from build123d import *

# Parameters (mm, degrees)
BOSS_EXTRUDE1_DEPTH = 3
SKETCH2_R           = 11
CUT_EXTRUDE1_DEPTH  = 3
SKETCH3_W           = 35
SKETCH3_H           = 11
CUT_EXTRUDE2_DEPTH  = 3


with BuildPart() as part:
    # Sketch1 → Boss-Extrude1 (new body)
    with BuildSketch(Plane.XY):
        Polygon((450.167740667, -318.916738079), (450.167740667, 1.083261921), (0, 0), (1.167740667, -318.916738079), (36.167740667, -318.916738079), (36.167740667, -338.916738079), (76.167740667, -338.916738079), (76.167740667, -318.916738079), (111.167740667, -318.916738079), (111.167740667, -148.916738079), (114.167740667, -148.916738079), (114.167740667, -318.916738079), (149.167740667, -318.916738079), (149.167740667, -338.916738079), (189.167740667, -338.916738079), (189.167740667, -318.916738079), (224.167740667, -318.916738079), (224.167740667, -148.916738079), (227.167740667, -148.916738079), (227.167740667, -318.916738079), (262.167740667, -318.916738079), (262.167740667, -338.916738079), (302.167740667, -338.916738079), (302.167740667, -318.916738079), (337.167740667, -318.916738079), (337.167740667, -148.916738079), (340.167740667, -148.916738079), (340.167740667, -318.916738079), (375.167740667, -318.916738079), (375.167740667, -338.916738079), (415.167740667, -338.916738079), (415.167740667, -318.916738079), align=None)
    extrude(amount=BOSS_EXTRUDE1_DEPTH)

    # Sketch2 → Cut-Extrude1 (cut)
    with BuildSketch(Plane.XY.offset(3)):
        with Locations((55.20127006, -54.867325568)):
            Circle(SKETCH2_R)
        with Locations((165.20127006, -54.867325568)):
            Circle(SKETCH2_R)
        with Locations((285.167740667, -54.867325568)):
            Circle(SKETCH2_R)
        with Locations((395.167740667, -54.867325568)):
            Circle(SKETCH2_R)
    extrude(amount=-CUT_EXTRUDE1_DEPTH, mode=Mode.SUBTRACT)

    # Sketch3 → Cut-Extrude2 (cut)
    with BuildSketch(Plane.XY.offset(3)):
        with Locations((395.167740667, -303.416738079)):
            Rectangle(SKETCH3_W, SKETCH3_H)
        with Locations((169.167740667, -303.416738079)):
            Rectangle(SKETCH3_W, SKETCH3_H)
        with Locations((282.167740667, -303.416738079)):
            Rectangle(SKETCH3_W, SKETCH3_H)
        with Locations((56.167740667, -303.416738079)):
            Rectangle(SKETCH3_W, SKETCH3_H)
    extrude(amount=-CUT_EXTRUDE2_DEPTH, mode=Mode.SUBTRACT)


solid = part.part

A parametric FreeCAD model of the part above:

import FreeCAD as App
import Part
import Sketcher
from FreeCAD import Vector
Q = App.Units.Quantity


def add_polygon(sketch, points):
    """Adds a closed chain of lines whose ends are joined by coincident constraints."""
    first, n = sketch.GeometryCount, len(points)
    for a, b in zip(points, points[1:] + points[:1]):
        sketch.addGeometry(Part.LineSegment(App.Vector(*a, 0), App.Vector(*b, 0)), False)
    for i in range(n):
        sketch.addConstraint(Sketcher.Constraint("Coincident", first + i, 2, first + (i + 1) % n, 1))

doc = App.newDocument("Part")
body = doc.addObject("PartDesign::Body", "Body")

# Sketch on XY plane
sketch1 = body.newObject("Sketcher::SketchObject", "Sketch")
sketch1.AttachmentSupport = (doc.getObject("XY_Plane"), [""])
sketch1.MapMode = "FlatFace"
add_polygon(sketch1, [(450.2, -318.9), (450.2, 1.1), (0, 0), (1.2, -318.9), (36.2, -318.9), (36.2, -338.9), (76.2, -338.9), (76.2, -318.9), (111.2, -318.9), (111.2, -148.9), (114.2, -148.9), (114.2, -318.9), (149.2, -318.9), (149.2, -338.9), (189.2, -338.9), (189.2, -318.9), (224.2, -318.9), (224.2, -148.9), (227.2, -148.9), (227.2, -318.9), (262.2, -318.9), (262.2, -338.9), (302.2, -338.9), (302.2, -318.9), (337.2, -318.9), (337.2, -148.9), (340.2, -148.9), (340.2, -318.9), (375.2, -318.9), (375.2, -338.9), (415.2, -338.9), (415.2, -318.9)])  # lines 0-31
sketch1.addConstraint([
    Sketcher.Constraint("Vertical", 0),
    Sketcher.Constraint("Horizontal", 3),
    Sketcher.Constraint("Vertical", 4),
    Sketcher.Constraint("Horizontal", 5),
    Sketcher.Constraint("Vertical", 6),
    Sketcher.Constraint("Horizontal", 7),
    Sketcher.Constraint("Vertical", 8),
    Sketcher.Constraint("Horizontal", 9),
    Sketcher.Constraint("Vertical", 10),
    Sketcher.Constraint("Horizontal", 11),
    Sketcher.Constraint("Vertical", 12),
    Sketcher.Constraint("Horizontal", 13),
    Sketcher.Constraint("Vertical", 14),
    Sketcher.Constraint("Horizontal", 15),
    Sketcher.Constraint("Vertical", 16),
    Sketcher.Constraint("Horizontal", 17),
    Sketcher.Constraint("Vertical", 18),
    Sketcher.Constraint("Horizontal", 19),
    Sketcher.Constraint("Vertical", 20),
    Sketcher.Constraint("Horizontal", 21),
    Sketcher.Constraint("Vertical", 22),
    Sketcher.Constraint("Horizontal", 23),
    Sketcher.Constraint("Vertical", 24),
    Sketcher.Constraint("Horizontal", 25),
    Sketcher.Constraint("Vertical", 26),
    Sketcher.Constraint("Horizontal", 27),
    Sketcher.Constraint("Vertical", 28),
    Sketcher.Constraint("Horizontal", 29),
    Sketcher.Constraint("Vertical", 30),
    Sketcher.Constraint("Horizontal", 31),
    Sketcher.Constraint("Coincident", 1, 2, -1, 1),
    Sketcher.Constraint("Horizontal", 3, 2, 6, 2),
    Sketcher.Constraint("Horizontal", 7, 2, 10, 2),
    Sketcher.Constraint("Horizontal", 5, 2, 12, 2),
    Sketcher.Constraint("Horizontal", 11, 2, 14, 2),
    Sketcher.Constraint("Horizontal", 9, 2, 16, 2),
    Sketcher.Constraint("Horizontal", 15, 2, 18, 2),
    Sketcher.Constraint("Horizontal", 13, 2, 20, 2),
    Sketcher.Constraint("Horizontal", 19, 2, 22, 2),
    Sketcher.Constraint("Horizontal", 17, 2, 24, 2),
    Sketcher.Constraint("Horizontal", 23, 2, 26, 2),
    Sketcher.Constraint("Horizontal", 21, 2, 28, 2),
    Sketcher.Constraint("Horizontal", 27, 2, 30, 2),
    Sketcher.Constraint("Equal", 3, 7),
    Sketcher.Constraint("Equal", 7, 11),
    Sketcher.Constraint("Equal", 5, 13),
    Sketcher.Constraint("Equal", 11, 15),
    Sketcher.Constraint("Equal", 9, 17),
    Sketcher.Constraint("Equal", 15, 19),
    Sketcher.Constraint("Equal", 13, 21),
    Sketcher.Constraint("Equal", 19, 23),
    Sketcher.Constraint("Equal", 17, 25),
    Sketcher.Constraint("Equal", 23, 27),
    Sketcher.Constraint("Equal", 21, 29),
    Sketcher.Constraint("Equal", 27, 31),
    Sketcher.Constraint("DistanceX", 3, 1, 3, 2, Q("35 mm")),
    Sketcher.Constraint("DistanceX", 5, 1, 5, 2, Q("40 mm")),
    Sketcher.Constraint("DistanceX", 9, 1, 9, 2, Q("3 mm")),
    Sketcher.Constraint("DistanceY", 0, 1, 0, 2, Q("320 mm")),
    Sketcher.Constraint("DistanceY", 4, 2, 4, 1, Q("20 mm")),
    Sketcher.Constraint("DistanceY", 8, 1, 8, 2, Q("170 mm")),
    Sketcher.Constraint("DistanceX", -1, 1, 0, 2, Q("450.167741 mm")),
    Sketcher.Constraint("DistanceY", -1, 1, 0, 2, Q("1.083262 mm")),
])
pad1 = body.newObject("PartDesign::Pad", "Pad")
pad1.Profile = sketch1
pad1.Length = 3

# Sketch on XY plane
sketch2 = body.newObject("Sketcher::SketchObject", "Sketch001")
sketch2.AttachmentSupport = (doc.getObject("XY_Plane"), [""])
sketch2.MapMode = "FlatFace"
sketch2.AttachmentOffset = App.Placement(Vector(0, 0, 3), App.Rotation())
sketch2.addGeometry([
    Part.Circle(Vector(55, -55, 0), Vector(0, 0, 1), 11),
    Part.Circle(Vector(165, -55, 0), Vector(0, 0, 1), 11),
    Part.Circle(Vector(285, -55, 0), Vector(0, 0, 1), 11),
    Part.Circle(Vector(395, -55, 0), Vector(0, 0, 1), 11),
], False)
sketch2.addConstraint([
    Sketcher.Constraint("Equal", 0, 1),
    Sketcher.Constraint("Equal", 1, 2),
    Sketcher.Constraint("Equal", 2, 3),
    Sketcher.Constraint("Horizontal", 0, 3, 1, 3),
    Sketcher.Constraint("Horizontal", 1, 3, 2, 3),
    Sketcher.Constraint("Horizontal", 2, 3, 3, 3),
    Sketcher.Constraint("Diameter", 0, Q("22 mm")),
    Sketcher.Constraint("DistanceX", 0, 3, 1, 3, Q("110 mm")),
    Sketcher.Constraint("DistanceX", 2, 3, 3, 3, Q("110 mm")),
    Sketcher.Constraint("DistanceX", -1, 1, 0, 3, Q("55.20127 mm")),
    Sketcher.Constraint("DistanceX", -1, 1, 2, 3, Q("285.167741 mm")),
    Sketcher.Constraint("DistanceY", 0, 3, -1, 1, Q("54.867326 mm")),
])
pocket1 = body.newObject("PartDesign::Pocket", "Pocket")
pocket1.Profile = sketch2
pocket1.Length = 3

# Sketch on XY plane
sketch3 = body.newObject("Sketcher::SketchObject", "Sketch002")
sketch3.AttachmentSupport = (doc.getObject("XY_Plane"), [""])
sketch3.MapMode = "FlatFace"
sketch3.AttachmentOffset = App.Placement(Vector(0, 0, 3), App.Rotation())
add_polygon(sketch3, [(378, -298), (378, -309), (413, -309), (413, -298)])  # lines 0-3
add_polygon(sketch3, [(152, -298), (152, -309), (187, -309), (187, -298)])  # lines 4-7
add_polygon(sketch3, [(265, -298), (265, -309), (300, -309), (300, -298)])  # lines 8-11
add_polygon(sketch3, [(39, -298), (39, -309), (74, -309), (74, -298)])  # lines 12-15
sketch3.addConstraint([
    Sketcher.Constraint("Vertical", 0),
    Sketcher.Constraint("Horizontal", 1),
    Sketcher.Constraint("Vertical", 2),
    Sketcher.Constraint("Horizontal", 3),
    Sketcher.Constraint("Vertical", 4),
    Sketcher.Constraint("Horizontal", 5),
    Sketcher.Constraint("Vertical", 6),
    Sketcher.Constraint("Horizontal", 7),
    Sketcher.Constraint("Vertical", 8),
    Sketcher.Constraint("Horizontal", 9),
    Sketcher.Constraint("Vertical", 10),
    Sketcher.Constraint("Horizontal", 11),
    Sketcher.Constraint("Vertical", 12),
    Sketcher.Constraint("Horizontal", 13),
    Sketcher.Constraint("Vertical", 14),
    Sketcher.Constraint("Horizontal", 15),
    Sketcher.Constraint("Horizontal", 1, 2, 4, 2),
    Sketcher.Constraint("Horizontal", 3, 2, 6, 2),
    Sketcher.Constraint("Horizontal", 5, 2, 8, 2),
    Sketcher.Constraint("Horizontal", 7, 2, 10, 2),
    Sketcher.Constraint("Horizontal", 9, 2, 12, 2),
    Sketcher.Constraint("Horizontal", 11, 2, 14, 2),
    Sketcher.Constraint("Equal", 3, 5),
    Sketcher.Constraint("Equal", 7, 9),
    Sketcher.Constraint("Equal", 11, 13),
    Sketcher.Constraint("DistanceX", 1, 1, 1, 2, Q("35 mm")),
    Sketcher.Constraint("DistanceY", 0, 2, 0, 1, Q("11 mm")),
    Sketcher.Constraint("DistanceX", 4, 2, 0, 2, Q("226 mm")),
    Sketcher.Constraint("DistanceX", 5, 2, 8, 2, Q("78 mm")),
    Sketcher.Constraint("DistanceX", 12, 2, 4, 2, Q("113 mm")),
    Sketcher.Constraint("DistanceX", -1, 1, 0, 2, Q("377.667741 mm")),
    Sketcher.Constraint("DistanceY", 0, 2, -1, 1, Q("308.916738 mm")),
])
pocket2 = body.newObject("PartDesign::Pocket", "Pocket001")
pocket2.Profile = sketch3
pocket2.Length = 3

doc.recompute()
